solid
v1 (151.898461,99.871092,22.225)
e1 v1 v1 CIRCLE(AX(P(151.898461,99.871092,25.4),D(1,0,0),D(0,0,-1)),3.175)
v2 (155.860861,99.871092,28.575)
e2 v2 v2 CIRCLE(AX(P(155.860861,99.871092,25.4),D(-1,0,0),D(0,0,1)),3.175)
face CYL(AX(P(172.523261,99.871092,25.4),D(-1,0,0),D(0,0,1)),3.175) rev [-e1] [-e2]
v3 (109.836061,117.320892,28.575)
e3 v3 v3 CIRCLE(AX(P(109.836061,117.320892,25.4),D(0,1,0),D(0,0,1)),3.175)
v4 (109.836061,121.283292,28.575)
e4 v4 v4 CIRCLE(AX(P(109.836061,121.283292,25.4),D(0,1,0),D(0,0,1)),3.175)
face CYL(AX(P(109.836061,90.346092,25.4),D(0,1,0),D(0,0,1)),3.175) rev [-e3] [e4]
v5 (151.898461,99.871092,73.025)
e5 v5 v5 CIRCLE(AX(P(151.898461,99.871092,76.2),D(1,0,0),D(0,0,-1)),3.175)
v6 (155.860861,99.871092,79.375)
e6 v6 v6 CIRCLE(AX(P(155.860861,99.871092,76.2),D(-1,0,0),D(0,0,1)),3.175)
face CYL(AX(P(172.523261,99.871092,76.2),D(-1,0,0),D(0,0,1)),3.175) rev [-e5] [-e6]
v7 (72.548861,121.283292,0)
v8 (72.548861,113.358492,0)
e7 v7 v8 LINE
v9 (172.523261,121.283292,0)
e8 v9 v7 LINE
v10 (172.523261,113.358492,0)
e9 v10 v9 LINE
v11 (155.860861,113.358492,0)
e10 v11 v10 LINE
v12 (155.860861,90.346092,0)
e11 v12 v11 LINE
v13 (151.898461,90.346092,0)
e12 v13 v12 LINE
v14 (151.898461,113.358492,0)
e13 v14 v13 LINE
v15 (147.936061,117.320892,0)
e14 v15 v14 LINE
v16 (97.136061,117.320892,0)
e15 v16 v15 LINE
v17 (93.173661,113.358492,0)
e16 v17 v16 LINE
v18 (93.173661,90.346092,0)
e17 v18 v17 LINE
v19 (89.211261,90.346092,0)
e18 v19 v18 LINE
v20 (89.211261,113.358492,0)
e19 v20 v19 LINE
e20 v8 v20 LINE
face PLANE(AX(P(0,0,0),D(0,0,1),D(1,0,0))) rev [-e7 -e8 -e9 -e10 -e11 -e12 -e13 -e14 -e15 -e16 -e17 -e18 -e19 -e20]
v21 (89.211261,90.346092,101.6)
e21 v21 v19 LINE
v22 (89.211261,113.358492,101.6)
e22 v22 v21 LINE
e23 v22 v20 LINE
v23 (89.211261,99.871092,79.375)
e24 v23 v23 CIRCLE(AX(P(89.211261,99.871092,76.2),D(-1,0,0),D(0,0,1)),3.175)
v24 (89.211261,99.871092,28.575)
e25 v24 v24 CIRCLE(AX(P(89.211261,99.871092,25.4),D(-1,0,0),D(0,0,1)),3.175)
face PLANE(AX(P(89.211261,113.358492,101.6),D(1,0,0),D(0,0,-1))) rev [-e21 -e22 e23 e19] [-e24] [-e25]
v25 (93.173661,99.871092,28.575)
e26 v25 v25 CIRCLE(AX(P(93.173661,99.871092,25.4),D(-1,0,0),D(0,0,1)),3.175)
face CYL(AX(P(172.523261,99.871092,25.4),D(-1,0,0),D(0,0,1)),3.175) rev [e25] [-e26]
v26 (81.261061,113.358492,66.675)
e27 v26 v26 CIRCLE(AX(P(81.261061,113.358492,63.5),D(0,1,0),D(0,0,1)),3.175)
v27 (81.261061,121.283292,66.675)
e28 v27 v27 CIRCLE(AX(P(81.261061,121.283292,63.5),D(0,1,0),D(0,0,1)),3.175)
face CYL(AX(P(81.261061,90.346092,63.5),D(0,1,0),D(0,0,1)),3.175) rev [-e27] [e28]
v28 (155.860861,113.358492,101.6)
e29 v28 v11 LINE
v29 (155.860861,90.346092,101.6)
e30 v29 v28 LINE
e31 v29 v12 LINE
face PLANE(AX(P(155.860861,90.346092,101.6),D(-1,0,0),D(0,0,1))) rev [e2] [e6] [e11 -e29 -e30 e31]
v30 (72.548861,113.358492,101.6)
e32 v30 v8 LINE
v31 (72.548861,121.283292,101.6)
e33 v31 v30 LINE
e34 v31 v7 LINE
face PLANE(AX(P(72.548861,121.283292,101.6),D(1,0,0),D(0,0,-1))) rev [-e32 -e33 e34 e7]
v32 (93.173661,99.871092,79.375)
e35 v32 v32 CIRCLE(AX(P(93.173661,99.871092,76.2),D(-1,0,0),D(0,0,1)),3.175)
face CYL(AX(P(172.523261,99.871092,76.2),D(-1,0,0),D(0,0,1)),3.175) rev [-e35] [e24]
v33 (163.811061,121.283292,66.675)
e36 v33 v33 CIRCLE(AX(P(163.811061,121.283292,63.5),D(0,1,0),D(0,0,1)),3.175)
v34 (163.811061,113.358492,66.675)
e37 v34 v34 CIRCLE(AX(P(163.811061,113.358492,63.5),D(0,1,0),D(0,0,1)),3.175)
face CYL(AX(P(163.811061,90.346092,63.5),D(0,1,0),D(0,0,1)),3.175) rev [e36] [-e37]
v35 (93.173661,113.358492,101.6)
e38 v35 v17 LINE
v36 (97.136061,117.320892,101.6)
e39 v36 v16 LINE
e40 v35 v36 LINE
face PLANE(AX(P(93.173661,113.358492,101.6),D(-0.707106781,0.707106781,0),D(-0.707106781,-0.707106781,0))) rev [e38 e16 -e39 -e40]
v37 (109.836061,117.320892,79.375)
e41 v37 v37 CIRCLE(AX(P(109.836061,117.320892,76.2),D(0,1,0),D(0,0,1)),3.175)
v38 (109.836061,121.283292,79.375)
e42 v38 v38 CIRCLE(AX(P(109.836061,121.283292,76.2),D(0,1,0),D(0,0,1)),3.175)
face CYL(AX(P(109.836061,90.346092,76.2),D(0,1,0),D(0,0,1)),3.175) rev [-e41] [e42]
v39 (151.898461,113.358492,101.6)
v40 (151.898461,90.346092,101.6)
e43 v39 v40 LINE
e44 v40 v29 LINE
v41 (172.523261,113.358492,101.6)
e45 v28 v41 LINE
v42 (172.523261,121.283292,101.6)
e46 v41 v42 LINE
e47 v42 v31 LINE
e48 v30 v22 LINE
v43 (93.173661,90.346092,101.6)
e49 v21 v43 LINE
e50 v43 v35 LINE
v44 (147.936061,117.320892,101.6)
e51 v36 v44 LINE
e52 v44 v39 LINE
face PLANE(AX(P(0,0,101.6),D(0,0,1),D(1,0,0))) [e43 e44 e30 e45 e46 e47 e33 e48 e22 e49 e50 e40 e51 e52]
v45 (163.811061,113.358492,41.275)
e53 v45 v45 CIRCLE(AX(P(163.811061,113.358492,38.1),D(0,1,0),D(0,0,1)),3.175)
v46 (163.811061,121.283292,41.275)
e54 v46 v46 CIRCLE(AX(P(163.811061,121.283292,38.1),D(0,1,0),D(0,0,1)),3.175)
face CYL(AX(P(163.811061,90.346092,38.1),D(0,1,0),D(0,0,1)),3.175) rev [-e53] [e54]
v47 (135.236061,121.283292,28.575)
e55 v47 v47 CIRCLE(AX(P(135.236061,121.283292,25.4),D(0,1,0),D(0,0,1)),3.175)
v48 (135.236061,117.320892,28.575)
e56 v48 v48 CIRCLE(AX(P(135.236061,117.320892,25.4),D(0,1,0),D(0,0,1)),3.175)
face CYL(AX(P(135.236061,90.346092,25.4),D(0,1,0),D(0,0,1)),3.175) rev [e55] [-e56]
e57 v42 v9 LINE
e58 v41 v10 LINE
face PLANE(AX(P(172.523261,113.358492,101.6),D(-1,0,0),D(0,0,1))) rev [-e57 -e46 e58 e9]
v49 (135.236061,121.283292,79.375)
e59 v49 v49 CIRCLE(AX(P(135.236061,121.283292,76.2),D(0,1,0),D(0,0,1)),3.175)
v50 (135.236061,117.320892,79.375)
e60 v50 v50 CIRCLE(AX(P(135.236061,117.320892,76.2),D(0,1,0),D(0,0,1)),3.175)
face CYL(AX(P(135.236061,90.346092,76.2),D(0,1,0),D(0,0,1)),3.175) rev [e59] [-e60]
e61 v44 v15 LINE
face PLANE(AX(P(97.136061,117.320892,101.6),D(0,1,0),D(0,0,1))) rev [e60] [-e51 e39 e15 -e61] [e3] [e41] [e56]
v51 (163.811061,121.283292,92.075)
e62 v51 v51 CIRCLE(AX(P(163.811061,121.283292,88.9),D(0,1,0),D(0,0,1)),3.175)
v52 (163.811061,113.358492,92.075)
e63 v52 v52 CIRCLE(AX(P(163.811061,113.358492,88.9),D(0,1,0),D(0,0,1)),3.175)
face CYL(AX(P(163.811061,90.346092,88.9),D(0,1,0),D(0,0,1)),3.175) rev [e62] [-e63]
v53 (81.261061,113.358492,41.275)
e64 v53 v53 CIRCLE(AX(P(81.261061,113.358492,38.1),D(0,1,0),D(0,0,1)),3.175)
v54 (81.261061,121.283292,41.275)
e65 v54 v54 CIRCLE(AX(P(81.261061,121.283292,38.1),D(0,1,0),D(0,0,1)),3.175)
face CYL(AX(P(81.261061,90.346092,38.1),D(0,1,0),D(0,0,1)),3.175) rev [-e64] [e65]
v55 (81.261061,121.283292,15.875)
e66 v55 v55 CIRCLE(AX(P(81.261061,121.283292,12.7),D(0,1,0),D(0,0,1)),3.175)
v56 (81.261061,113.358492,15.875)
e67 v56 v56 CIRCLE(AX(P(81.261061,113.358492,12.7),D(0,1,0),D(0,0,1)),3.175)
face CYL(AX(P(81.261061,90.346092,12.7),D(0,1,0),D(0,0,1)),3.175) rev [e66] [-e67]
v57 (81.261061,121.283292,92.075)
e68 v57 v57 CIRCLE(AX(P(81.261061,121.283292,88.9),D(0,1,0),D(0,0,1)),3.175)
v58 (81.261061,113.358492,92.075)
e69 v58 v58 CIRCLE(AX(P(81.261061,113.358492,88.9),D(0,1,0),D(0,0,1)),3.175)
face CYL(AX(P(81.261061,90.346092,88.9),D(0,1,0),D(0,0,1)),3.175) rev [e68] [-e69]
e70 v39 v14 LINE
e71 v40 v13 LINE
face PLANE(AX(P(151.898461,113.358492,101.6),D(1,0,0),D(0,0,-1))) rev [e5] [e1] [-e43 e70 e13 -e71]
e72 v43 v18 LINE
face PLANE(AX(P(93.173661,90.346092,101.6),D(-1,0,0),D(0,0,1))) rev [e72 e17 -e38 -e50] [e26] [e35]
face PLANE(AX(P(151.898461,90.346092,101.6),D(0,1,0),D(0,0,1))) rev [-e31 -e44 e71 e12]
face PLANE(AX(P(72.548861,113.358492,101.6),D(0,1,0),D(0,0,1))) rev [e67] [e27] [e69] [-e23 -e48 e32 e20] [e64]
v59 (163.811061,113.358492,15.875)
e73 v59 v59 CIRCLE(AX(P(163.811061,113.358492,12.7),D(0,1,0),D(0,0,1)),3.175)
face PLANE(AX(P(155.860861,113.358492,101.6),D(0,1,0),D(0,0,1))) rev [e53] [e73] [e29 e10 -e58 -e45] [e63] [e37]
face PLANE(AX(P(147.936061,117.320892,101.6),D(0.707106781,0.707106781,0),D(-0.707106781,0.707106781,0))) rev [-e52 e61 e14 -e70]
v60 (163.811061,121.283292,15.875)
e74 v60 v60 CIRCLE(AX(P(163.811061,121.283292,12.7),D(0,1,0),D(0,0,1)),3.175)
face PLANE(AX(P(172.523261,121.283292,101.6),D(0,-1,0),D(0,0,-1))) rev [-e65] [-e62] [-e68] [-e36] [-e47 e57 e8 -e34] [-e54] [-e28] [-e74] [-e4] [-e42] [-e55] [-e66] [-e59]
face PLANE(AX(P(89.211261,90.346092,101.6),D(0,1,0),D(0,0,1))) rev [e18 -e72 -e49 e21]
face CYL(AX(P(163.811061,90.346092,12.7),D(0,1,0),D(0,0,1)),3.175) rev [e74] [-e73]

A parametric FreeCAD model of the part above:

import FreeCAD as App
import Part
import Sketcher

V = App.Vector
Q = App.Units.Quantity


def add_polygon(sketch, points):
    """Adds a closed chain of lines whose ends are joined by coincident constraints."""
    first, n = sketch.GeometryCount, len(points)
    for a, b in zip(points, points[1:] + points[:1]):
        sketch.addGeometry(Part.LineSegment(App.Vector(*a, 0), App.Vector(*b, 0)), False)
    for i in range(n):
        sketch.addConstraint(Sketcher.Constraint("Coincident", first + i, 2, first + (i + 1) % n, 1))

doc = App.newDocument("Part")
body = doc.addObject("PartDesign::Body", "Body")

sketch1 = doc.addObject("Sketcher::SketchObject", "Sketch")
body.addObject(sketch1)
sketch1.AttachmentSupport = (doc.XY_Plane, [""])
sketch1.MapMode = "FlatFace"
add_polygon(sketch1, [(93.2, 113.4), (97.1, 117.3), (147.9, 117.3), (151.9, 113.4), (151.9, 90.3), (155.9, 90.3), (155.9, 113.4), (172.5, 113.4), (172.5, 121.3), (72.5, 121.3), (72.5, 113.4), (89.2, 113.4), (89.2, 90.3), (93.2, 90.3)])
sketch1.addConstraint(Sketcher.Constraint("Horizontal", 1))
sketch1.addConstraint(Sketcher.Constraint("Vertical", 3))
sketch1.addConstraint(Sketcher.Constraint("Horizontal", 4))
sketch1.addConstraint(Sketcher.Constraint("Vertical", 5))
sketch1.addConstraint(Sketcher.Constraint("Horizontal", 6))
sketch1.addConstraint(Sketcher.Constraint("Vertical", 7))
sketch1.addConstraint(Sketcher.Constraint("Horizontal", 8))
sketch1.addConstraint(Sketcher.Constraint("Vertical", 9))
sketch1.addConstraint(Sketcher.Constraint("Horizontal", 10))
sketch1.addConstraint(Sketcher.Constraint("Vertical", 11))
sketch1.addConstraint(Sketcher.Constraint("Horizontal", 12))
sketch1.addConstraint(Sketcher.Constraint("Vertical", 13))
sketch1.addConstraint(Sketcher.Constraint("Perpendicular", 0, 2))
sketch1.addConstraint(Sketcher.Constraint("Horizontal", 2, 2, 5, 2))
sketch1.addConstraint(Sketcher.Constraint("Horizontal", 6, 2, 9, 2))
sketch1.addConstraint(Sketcher.Constraint("Horizontal", 4, 2, 11, 2))
sketch1.addConstraint(Sketcher.Constraint("Horizontal", 10, 2, 13, 2))
sketch1.addConstraint(Sketcher.Constraint("Equal", 6, 10))
sketch1.addConstraint(Sketcher.Constraint("Equal", 4, 12))
sketch1.addConstraint(Sketcher.Constraint("Equal", 0, 2))
sketch1.addConstraint(Sketcher.Constraint("DistanceX", 1, 1, 1, 2, Q("2 in")))
sketch1.addConstraint(Sketcher.Constraint("DistanceX", 4, 1, 4, 2, Q("0.156 in")))
sketch1.addConstraint(Sketcher.Constraint("DistanceX", 6, 1, 6, 2, Q("0.656 in")))
sketch1.addConstraint(Sketcher.Constraint("DistanceX", 8, 2, 8, 1, Q("3.936 in")))
sketch1.addConstraint(Sketcher.Constraint("DistanceY", 3, 2, 3, 1, Q("0.906 in")))
sketch1.addConstraint(Sketcher.Constraint("DistanceY", 7, 1, 7, 2, Q("0.312 in")))
sketch1.addConstraint(Sketcher.Constraint("DistanceX", -1, 1, 0, 2, Q("97.136061 mm")))
sketch1.addConstraint(Sketcher.Constraint("DistanceY", -1, 1, 0, 2, Q("117.320892 mm")))
pad1 = doc.addObject("PartDesign::Pad", "Pad")
body.addObject(pad1)
pad1.Profile = sketch1
pad1.Length = Q("4 in")

sketch2 = doc.addObject("Sketcher::SketchObject", "Sketch001")
body.addObject(sketch2)
sketch2.AttachmentSupport = (doc.XZ_Plane, [""])
sketch2.MapMode = "FlatFace"
sketch2.AttachmentOffset = App.Placement(V(0, 0, -121.283292), App.Rotation())
sketch2.addGeometry(Part.Circle(V(163.8, 12.7, 0), V(0, 0, 1), 3.2), False)
sketch2.addGeometry(Part.Circle(V(163.8, 38.1, 0), V(0, 0, 1), 3.2), False)
sketch2.addGeometry(Part.Circle(V(163.8, 63.5, 0), V(0, 0, 1), 3.2), False)
sketch2.addGeometry(Part.Circle(V(163.8, 88.9, 0), V(0, 0, 1), 3.2), False)
sketch2.addGeometry(Part.Circle(V(81.3, 38.1, 0), V(0, 0, 1), 3.2), False)
sketch2.addGeometry(Part.Circle(V(81.3, 63.5, 0), V(0, 0, 1), 3.2), False)
sketch2.addGeometry(Part.Circle(V(81.3, 88.9, 0), V(0, 0, 1), 3.2), False)
sketch2.addGeometry(Part.Circle(V(81.3, 12.7, 0), V(0, 0, 1), 3.2), False)
sketch2.addConstraint(Sketcher.Constraint("Equal", 0, 1))
sketch2.addConstraint(Sketcher.Constraint("Equal", 1, 2))
sketch2.addConstraint(Sketcher.Constraint("Equal", 2, 3))
sketch2.addConstraint(Sketcher.Constraint("Equal", 3, 4))
sketch2.addConstraint(Sketcher.Constraint("Equal", 4, 5))
sketch2.addConstraint(Sketcher.Constraint("Equal", 5, 6))
sketch2.addConstraint(Sketcher.Constraint("Equal", 6, 7))
sketch2.addConstraint(Sketcher.Constraint("Horizontal", 1, 3, 4, 3))
sketch2.addConstraint(Sketcher.Constraint("Horizontal", 2, 3, 5, 3))
sketch2.addConstraint(Sketcher.Constraint("Horizontal", 3, 3, 6, 3))
sketch2.addConstraint(Sketcher.Constraint("Horizontal", 0, 3, 7, 3))
sketch2.addConstraint(Sketcher.Constraint("Vertical", 0, 3, 1, 3))
sketch2.addConstraint(Sketcher.Constraint("Vertical", 1, 3, 2, 3))
sketch2.addConstraint(Sketcher.Constraint("Vertical", 2, 3, 3, 3))
sketch2.addConstraint(Sketcher.Constraint("Vertical", 4, 3, 5, 3))
sketch2.addConstraint(Sketcher.Constraint("Vertical", 5, 3, 6, 3))
sketch2.addConstraint(Sketcher.Constraint("Vertical", 6, 3, 7, 3))
sketch2.addConstraint(Sketcher.Constraint("Diameter", 0, Q("0.25 in")))
sketch2.addConstraint(Sketcher.Constraint("DistanceY", 0, 3, 1, 3, Q("1 in")))
sketch2.addConstraint(Sketcher.Constraint("DistanceY", 1, 3, 2, 3, Q("1 in")))
sketch2.addConstraint(Sketcher.Constraint("DistanceY", 2, 3, 3, 3, Q("1 in")))
sketch2.addConstraint(Sketcher.Constraint("DistanceY", -1, 1, 0, 3, Q("0.5 in")))
sketch2.addConstraint(Sketcher.Constraint("DistanceX", 4, 3, 1, 3, Q("3.25 in")))
sketch2.addConstraint(Sketcher.Constraint("DistanceX", -1, 1, 0, 3, Q("163.811061 mm")))
pocket1 = doc.addObject("PartDesign::Pocket", "Pocket")
body.addObject(pocket1)
pocket1.Profile = sketch2
pocket1.Type = "ThroughAll"
pocket1.Reversed = True

sketch3 = doc.addObject("Sketcher::SketchObject", "Sketch002")
body.addObject(sketch3)
sketch3.AttachmentSupport = (doc.XZ_Plane, [""])
sketch3.MapMode = "FlatFace"
sketch3.AttachmentOffset = App.Placement(V(0, 0, -121.283292), App.Rotation())
sketch3.addGeometry(Part.Circle(V(135.2, 25.4, 0), V(0, 0, 1), 3.2), False)
sketch3.addGeometry(Part.Circle(V(109.8, 25.4, 0), V(0, 0, 1), 3.2), False)
sketch3.addGeometry(Part.Circle(V(109.8, 76.2, 0), V(0, 0, 1), 3.2), False)
sketch3.addGeometry(Part.Circle(V(135.2, 76.2, 0), V(0, 0, 1), 3.2), False)
sketch3.addConstraint(Sketcher.Constraint("Equal", 0, 1))
sketch3.addConstraint(Sketcher.Constraint("Equal", 1, 2))
sketch3.addConstraint(Sketcher.Constraint("Equal", 2, 3))
sketch3.addConstraint(Sketcher.Constraint("Horizontal", 0, 3, 1, 3))
sketch3.addConstraint(Sketcher.Constraint("Horizontal", 2, 3, 3, 3))
sketch3.addConstraint(Sketcher.Constraint("Vertical", 1, 3, 2, 3))
sketch3.addConstraint(Sketcher.Constraint("Vertical", 0, 3, 3, 3))
sketch3.addConstraint(Sketcher.Constraint("Diameter", 0, Q("0.25 in")))
sketch3.addConstraint(Sketcher.Constraint("DistanceY", -1, 1, 0, 3, Q("1 in")))
sketch3.addConstraint(Sketcher.Constraint("DistanceY", -1, 1, 2, 3, Q("3 in")))
sketch3.addConstraint(Sketcher.Constraint("DistanceX", 1, 3, 0, 3, Q("1 in")))
sketch3.addConstraint(Sketcher.Constraint("DistanceX", -1, 1, 0, 3, Q("135.236061 mm")))
pocket2 = doc.addObject("PartDesign::Pocket", "Pocket001")
body.addObject(pocket2)
pocket2.Profile = sketch3
pocket2.Type = "ThroughAll"
pocket2.Reversed = True

sketch4 = doc.addObject("Sketcher::SketchObject", "Sketch003")
body.addObject(sketch4)
sketch4.AttachmentSupport = (doc.YZ_Plane, [""])
sketch4.MapMode = "FlatFace"
sketch4.AttachmentOffset = App.Placement(V(0, 0, 89.211261), App.Rotation())
sketch4.addGeometry(Part.Circle(V(99.9, 25.4, 0), V(0, 0, 1), 3.2), False)
sketch4.addGeometry(Part.Circle(V(99.9, 76.2, 0), V(0, 0, 1), 3.2), False)
sketch4.addConstraint(Sketcher.Constraint("Equal", 0, 1))
sketch4.addConstraint(Sketcher.Constraint("Vertical", 0, 3, 1, 3))
sketch4.addConstraint(Sketcher.Constraint("Diameter", 0, Q("0.25 in")))
sketch4.addConstraint(Sketcher.Constraint("DistanceY", -1, 1, 0, 3, Q("1 in")))
sketch4.addConstraint(Sketcher.Constraint("DistanceY", -1, 1, 1, 3, Q("3 in")))
sketch4.addConstraint(Sketcher.Constraint("DistanceX", -1, 1, 0, 3, Q("99.871092 mm")))
pocket3 = doc.addObject("PartDesign::Pocket", "Pocket002")
body.addObject(pocket3)
pocket3.Profile = sketch4
pocket3.Type = "ThroughAll"
pocket3.Reversed = True

doc.recompute()
